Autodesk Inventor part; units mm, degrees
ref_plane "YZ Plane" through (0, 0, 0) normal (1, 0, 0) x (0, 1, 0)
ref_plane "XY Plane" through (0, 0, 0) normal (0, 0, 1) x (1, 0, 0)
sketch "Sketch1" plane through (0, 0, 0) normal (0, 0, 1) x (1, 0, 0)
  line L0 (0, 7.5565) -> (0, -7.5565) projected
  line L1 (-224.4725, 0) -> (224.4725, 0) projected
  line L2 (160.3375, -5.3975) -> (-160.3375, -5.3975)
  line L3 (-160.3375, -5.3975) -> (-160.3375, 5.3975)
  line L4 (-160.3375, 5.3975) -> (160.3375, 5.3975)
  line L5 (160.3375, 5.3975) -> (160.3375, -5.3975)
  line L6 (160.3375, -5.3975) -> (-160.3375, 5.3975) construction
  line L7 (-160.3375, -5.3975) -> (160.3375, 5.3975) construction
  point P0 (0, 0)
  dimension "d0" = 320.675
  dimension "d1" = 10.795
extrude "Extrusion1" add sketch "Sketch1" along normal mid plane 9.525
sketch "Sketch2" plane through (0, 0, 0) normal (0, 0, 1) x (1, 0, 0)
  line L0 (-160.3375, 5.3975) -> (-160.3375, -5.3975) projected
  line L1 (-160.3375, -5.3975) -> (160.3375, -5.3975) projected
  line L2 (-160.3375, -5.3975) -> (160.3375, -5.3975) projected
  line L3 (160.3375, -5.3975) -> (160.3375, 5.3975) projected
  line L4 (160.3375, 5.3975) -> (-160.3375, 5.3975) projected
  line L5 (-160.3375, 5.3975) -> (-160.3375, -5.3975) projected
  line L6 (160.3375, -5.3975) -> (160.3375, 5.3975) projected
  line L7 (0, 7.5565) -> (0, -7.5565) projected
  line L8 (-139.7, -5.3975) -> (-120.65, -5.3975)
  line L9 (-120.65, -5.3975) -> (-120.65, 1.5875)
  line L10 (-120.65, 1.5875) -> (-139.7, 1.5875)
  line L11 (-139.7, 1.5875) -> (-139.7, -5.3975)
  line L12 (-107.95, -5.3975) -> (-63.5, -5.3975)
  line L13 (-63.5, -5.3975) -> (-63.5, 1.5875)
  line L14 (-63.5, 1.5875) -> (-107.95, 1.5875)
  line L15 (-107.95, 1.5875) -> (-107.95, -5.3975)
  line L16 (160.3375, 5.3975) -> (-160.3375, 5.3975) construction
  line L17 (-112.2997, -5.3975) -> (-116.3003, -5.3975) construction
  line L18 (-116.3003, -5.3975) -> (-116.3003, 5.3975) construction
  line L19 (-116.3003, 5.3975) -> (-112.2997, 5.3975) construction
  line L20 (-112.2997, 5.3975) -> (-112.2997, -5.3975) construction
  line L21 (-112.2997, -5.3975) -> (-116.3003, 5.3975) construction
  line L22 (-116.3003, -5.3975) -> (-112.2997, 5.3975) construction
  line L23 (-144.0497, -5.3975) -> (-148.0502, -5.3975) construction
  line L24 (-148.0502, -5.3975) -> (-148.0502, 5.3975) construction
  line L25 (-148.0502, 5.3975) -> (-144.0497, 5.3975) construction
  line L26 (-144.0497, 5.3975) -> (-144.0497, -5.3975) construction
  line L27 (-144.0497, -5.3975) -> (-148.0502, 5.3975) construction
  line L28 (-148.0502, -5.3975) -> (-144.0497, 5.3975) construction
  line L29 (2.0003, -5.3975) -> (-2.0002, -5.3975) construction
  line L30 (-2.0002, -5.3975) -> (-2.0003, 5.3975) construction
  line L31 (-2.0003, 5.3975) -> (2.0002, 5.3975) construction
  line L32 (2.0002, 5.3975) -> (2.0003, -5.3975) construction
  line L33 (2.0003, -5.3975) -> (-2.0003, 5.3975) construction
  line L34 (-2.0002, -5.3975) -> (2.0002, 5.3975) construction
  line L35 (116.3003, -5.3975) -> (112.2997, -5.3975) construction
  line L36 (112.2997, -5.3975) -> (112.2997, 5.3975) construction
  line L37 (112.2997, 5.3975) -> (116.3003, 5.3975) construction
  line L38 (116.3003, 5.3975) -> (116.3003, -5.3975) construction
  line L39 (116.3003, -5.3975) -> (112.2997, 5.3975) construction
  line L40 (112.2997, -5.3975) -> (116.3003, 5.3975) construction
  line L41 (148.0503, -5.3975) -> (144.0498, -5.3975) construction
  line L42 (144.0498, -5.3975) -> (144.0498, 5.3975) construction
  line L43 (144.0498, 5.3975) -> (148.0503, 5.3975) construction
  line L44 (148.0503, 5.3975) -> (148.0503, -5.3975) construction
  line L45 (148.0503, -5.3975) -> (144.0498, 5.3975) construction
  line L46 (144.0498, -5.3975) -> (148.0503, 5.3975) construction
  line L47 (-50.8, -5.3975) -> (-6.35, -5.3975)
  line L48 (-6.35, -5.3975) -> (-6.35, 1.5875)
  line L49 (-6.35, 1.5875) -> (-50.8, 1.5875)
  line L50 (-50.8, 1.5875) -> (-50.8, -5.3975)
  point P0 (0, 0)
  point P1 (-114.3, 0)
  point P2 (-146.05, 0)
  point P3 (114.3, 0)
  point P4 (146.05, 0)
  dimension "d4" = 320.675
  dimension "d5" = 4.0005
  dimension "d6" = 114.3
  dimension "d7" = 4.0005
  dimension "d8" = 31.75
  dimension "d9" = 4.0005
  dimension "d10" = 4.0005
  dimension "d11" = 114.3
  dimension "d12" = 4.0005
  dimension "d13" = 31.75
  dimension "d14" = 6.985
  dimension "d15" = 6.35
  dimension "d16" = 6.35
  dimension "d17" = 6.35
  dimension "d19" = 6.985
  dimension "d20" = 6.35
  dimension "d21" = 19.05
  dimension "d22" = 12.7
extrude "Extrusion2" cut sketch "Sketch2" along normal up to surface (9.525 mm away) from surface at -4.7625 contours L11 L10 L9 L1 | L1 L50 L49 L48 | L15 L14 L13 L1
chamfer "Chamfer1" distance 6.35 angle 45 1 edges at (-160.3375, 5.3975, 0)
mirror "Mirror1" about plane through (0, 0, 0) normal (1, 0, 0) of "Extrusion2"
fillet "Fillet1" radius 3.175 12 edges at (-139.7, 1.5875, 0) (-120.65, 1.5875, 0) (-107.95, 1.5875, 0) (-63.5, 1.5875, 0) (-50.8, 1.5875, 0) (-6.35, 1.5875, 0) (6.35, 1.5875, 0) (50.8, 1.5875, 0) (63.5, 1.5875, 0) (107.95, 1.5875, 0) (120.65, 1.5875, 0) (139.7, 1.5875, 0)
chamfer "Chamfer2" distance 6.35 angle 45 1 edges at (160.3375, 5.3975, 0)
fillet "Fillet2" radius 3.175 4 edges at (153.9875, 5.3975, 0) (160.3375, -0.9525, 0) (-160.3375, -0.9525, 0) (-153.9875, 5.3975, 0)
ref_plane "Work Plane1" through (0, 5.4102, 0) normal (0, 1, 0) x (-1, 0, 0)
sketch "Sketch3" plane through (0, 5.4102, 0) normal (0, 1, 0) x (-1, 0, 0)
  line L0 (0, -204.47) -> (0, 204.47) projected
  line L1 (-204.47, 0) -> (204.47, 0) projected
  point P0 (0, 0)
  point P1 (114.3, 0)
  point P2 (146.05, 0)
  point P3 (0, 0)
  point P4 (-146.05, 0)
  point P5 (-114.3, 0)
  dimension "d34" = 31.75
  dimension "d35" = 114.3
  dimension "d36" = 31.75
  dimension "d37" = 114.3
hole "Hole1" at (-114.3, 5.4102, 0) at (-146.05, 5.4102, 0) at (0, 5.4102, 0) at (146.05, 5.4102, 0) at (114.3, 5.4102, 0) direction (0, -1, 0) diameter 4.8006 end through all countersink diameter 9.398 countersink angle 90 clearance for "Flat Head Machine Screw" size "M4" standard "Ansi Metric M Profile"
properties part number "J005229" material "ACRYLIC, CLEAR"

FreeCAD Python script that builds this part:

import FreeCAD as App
import Part
import Sketcher

V = App.Vector
Q = App.Units.Quantity


def edges_at(feature, points):
    """Names of the edges that pass closest to the given points."""
    edges = feature.Shape.Edges
    near = lambda p: min(range(len(edges)), key=lambda i: edges[i].distToShape(Part.Vertex(*p))[0])
    return sorted({f"Edge{near(p) + 1}" for p in points})


def add_polygon(sketch, points):
    """Adds a closed chain of lines whose ends are joined by coincident constraints."""
    first, n = sketch.GeometryCount, len(points)
    for a, b in zip(points, points[1:] + points[:1]):
        sketch.addGeometry(Part.LineSegment(App.Vector(*a, 0), App.Vector(*b, 0)), False)
    for i in range(n):
        sketch.addConstraint(Sketcher.Constraint("Coincident", first + i, 2, first + (i + 1) % n, 1))

doc = App.newDocument("Part")
params = doc.addObject("Spreadsheet::Sheet", "Params")
for row, (alias, value) in enumerate([
    ("sketch1_width", "12.625 in"),
    ("sketch1_height", "0.425 in"),
    ("pad1_length", "0.375 in"),
    ("sketch2_width", "0.75 in"),
    ("sketch2_height", "0.275 in"),
    ("pocket1_length", "0.375 in"),
    ("chamfer_size", "0.25 in"),
    ("fillet_radius", "0.125 in"),
    ("chamfer2_size", "0.25 in"),
    ("fillet2_radius", "0.125 in"),
    ("sketch3_diameter", "0.189 in"),
    ("hole_diameter", "0.189 in"),
    ("hole_csink_diameter", "0.37 in"),
], start=1):
    params.set(f"A{row}", alias)
    params.set(f"B{row}", "=" + value)
    params.setAlias(f"B{row}", alias)

body = doc.addObject("PartDesign::Body", "Body")

# Sketch on XY plane
sketch1 = body.newObject("Sketcher::SketchObject", "Sketch")
sketch1.AttachmentSupport = (doc.getObject("XY_Plane"), [""])
sketch1.MapMode = "FlatFace"
add_polygon(sketch1, [(160, 5), (-160, 5), (-160, -5), (160, -5)])  # lines 0-3
sketch1.addConstraint(Sketcher.Constraint("Horizontal", 0))
sketch1.addConstraint(Sketcher.Constraint("Vertical", 1))
sketch1.addConstraint(Sketcher.Constraint("Horizontal", 2))
sketch1.addConstraint(Sketcher.Constraint("Vertical", 3))
sketch1.addConstraint(Sketcher.Constraint("Symmetric", 0, 2, 2, 2, -1, 1))
sketch1.addConstraint(Sketcher.Constraint("DistanceX", 0, 2, 0, 1, Q("12.625 in")))
sketch1.addConstraint(Sketcher.Constraint("DistanceY", 1, 2, 1, 1, Q("0.425 in")))
sketch1.setExpression("Constraints[9]", "Params.sketch1_width")
sketch1.setExpression("Constraints[10]", "Params.sketch1_height")
pad1 = body.newObject("PartDesign::Pad", "Pad")
pad1.Profile = sketch1
pad1.setExpression("Length", "Params.pad1_length")
pad1.Midplane = True

# Sketch on XY plane
sketch2 = body.newObject("Sketcher::SketchObject", "Sketch001")
sketch2.AttachmentSupport = (doc.getObject("XY_Plane"), [""])
sketch2.MapMode = "FlatFace"
sketch2.AttachmentOffset = App.Placement(V(0, 0, -0.1875 * 25.4), App.Rotation())
add_polygon(sketch2, [(-140, 2), (-140, -5), (-121, -5), (-121, 2)])  # lines 0-3
add_polygon(sketch2, [(-51, -5), (-6, -5), (-6, 2), (-51, 2)])  # lines 4-7
add_polygon(sketch2, [(-108, 2), (-108, -5), (-64, -5), (-64, 2)])  # lines 8-11
sketch2.addConstraint(Sketcher.Constraint("Vertical", 0))
sketch2.addConstraint(Sketcher.Constraint("Horizontal", 1))
sketch2.addConstraint(Sketcher.Constraint("Vertical", 2))
sketch2.addConstraint(Sketcher.Constraint("Horizontal", 3))
sketch2.addConstraint(Sketcher.Constraint("Horizontal", 4))
sketch2.addConstraint(Sketcher.Constraint("Vertical", 5))
sketch2.addConstraint(Sketcher.Constraint("Horizontal", 6))
sketch2.addConstraint(Sketcher.Constraint("Vertical", 7))
sketch2.addConstraint(Sketcher.Constraint("Vertical", 8))
sketch2.addConstraint(Sketcher.Constraint("Horizontal", 9))
sketch2.addConstraint(Sketcher.Constraint("Vertical", 10))
sketch2.addConstraint(Sketcher.Constraint("Horizontal", 11))
sketch2.addConstraint(Sketcher.Constraint("Horizontal", 1, 2, 4, 2))
sketch2.addConstraint(Sketcher.Constraint("Horizontal", 3, 2, 5, 2))
sketch2.addConstraint(Sketcher.Constraint("Horizontal", 7, 2, 8, 2))
sketch2.addConstraint(Sketcher.Constraint("Horizontal", 6, 2, 10, 2))
sketch2.addConstraint(Sketcher.Constraint("Equal", 6, 9))
sketch2.addConstraint(Sketcher.Constraint("DistanceX", 1, 1, 1, 2, Q("0.75 in")))
sketch2.addConstraint(Sketcher.Constraint("DistanceX", 1, 2, 4, 2, Q("4.5 in")))
sketch2.addConstraint(Sketcher.Constraint("DistanceX", 1, 2, 8, 2, Q("0.5 in")))
sketch2.addConstraint(Sketcher.Constraint("DistanceX", 9, 2, 7, 2, Q("0.5 in")))
sketch2.addConstraint(Sketcher.Constraint("DistanceY", 0, 2, 0, 1, Q("0.275 in")))
sketch2.addConstraint(Sketcher.Constraint("DistanceX", 4, 2, -1, 1, Q("0.25 in")))
sketch2.addConstraint(Sketcher.Constraint("DistanceY", -1, 1, 2, 2, Q("0.0625 in")))
sketch2.setExpression("Constraints[29]", "Params.sketch2_width")
sketch2.setExpression("Constraints[33]", "Params.sketch2_height")
pocket1 = body.newObject("PartDesign::Pocket", "Pocket")
pocket1.Profile = sketch2
pocket1.setExpression("Length", "Params.pocket1_length")
pocket1.Reversed = True
doc.recompute()

chamfer = body.newObject("PartDesign::Chamfer", "Chamfer")
chamfer.Base = (pocket1, edges_at(pocket1, [(-160.338, 5.397, 0)]))
chamfer.setExpression("Size", "Params.chamfer_size")
doc.recompute()

mirrored = body.newObject("PartDesign::Mirrored", "Mirrored")
mirrored.Originals = [pocket1]
mirrored.MirrorPlane = (doc.getObject("YZ_Plane"), [""])
body.Tip = mirrored
doc.recompute()

fillet = body.newObject("PartDesign::Fillet", "Fillet")
fillet.Base = (mirrored, edges_at(mirrored, [
    (-139.7, 1.587, 0),
    (-120.65, 1.587, 0),
    (-107.95, 1.587, 0),
    (-63.5, 1.587, 0),
    (-50.8, 1.587, 0),
    (-6.35, 1.587, 0),
    (6.35, 1.587, 0),
    (50.8, 1.587, 0),
    (63.5, 1.587, 0),
    (107.95, 1.587, 0),
    (120.65, 1.587, 0),
    (139.7, 1.587, 0),
]))
fillet.setExpression("Radius", "Params.fillet_radius")
doc.recompute()

chamfer2 = body.newObject("PartDesign::Chamfer", "Chamfer001")
chamfer2.Base = (fillet, edges_at(fillet, [(160.338, 5.397, 0)]))
chamfer2.setExpression("Size", "Params.chamfer2_size")
doc.recompute()

fillet2 = body.newObject("PartDesign::Fillet", "Fillet001")
fillet2.Base = (chamfer2, edges_at(chamfer2, [
    (153.988, 5.397, 0),
    (160.338, -0.953, 0),
    (-160.338, -0.953, 0),
    (-153.988, 5.397, 0),
]))
fillet2.setExpression("Radius", "Params.fillet2_radius")

# Sketch on XZ plane
sketch3 = body.newObject("Sketcher::SketchObject", "Sketch002")
sketch3.AttachmentSupport = (doc.getObject("XZ_Plane"), [""])
sketch3.MapMode = "FlatFace"
sketch3.AttachmentOffset = App.Placement(V(0, 0, -0.213 * 25.4), App.Rotation())
sketch3.addGeometry(Part.Circle(V(-114.3, 0, 0), V(0, 0, 1), 2.4), False)
sketch3.addGeometry(Part.Circle(V(-146.1, 0, 0), V(0, 0, 1), 2.4), False)
sketch3.addGeometry(Part.Circle(V(0, 0, 0), V(0, 0, 1), 2.4), False)
sketch3.addGeometry(Part.Circle(V(146.1, 0, 0), V(0, 0, 1), 2.4), False)
sketch3.addGeometry(Part.Circle(V(114.3, 0, 0), V(0, 0, 1), 2.4), False)
sketch3.addConstraint(Sketcher.Constraint("Coincident", 2, 3, -1, 1))
sketch3.addConstraint(Sketcher.Constraint("Equal", 0, 1))
sketch3.addConstraint(Sketcher.Constraint("Equal", 1, 2))
sketch3.addConstraint(Sketcher.Constraint("Equal", 2, 3))
sketch3.addConstraint(Sketcher.Constraint("Equal", 3, 4))
sketch3.addConstraint(Sketcher.Constraint("Symmetric", 1, 3, 3, 3, -1, 1))
sketch3.addConstraint(Sketcher.Constraint("Symmetric", 0, 3, 4, 3, -1, 1))
sketch3.addConstraint(Sketcher.Constraint("PointOnObject", 0, 3, -1))
sketch3.addConstraint(Sketcher.Constraint("PointOnObject", 1, 3, -1))
sketch3.addConstraint(Sketcher.Constraint("Diameter", 0, Q("0.189 in")))
sketch3.addConstraint(Sketcher.Constraint("DistanceX", 0, 3, 4, 3, Q("9 in")))
sketch3.addConstraint(Sketcher.Constraint("DistanceX", 1, 3, 3, 3, Q("11.5 in")))
sketch3.setExpression("Constraints[9]", "Params.sketch3_diameter")
doc.recompute()
hole = body.newObject("PartDesign::Hole", "Hole")
hole.Profile = sketch3
hole.ThreadType = "None"
hole.setExpression("Diameter", "Params.hole_diameter")
hole.DepthType = "ThroughAll"
hole.HoleCutType = "Countersink"
hole.setExpression("HoleCutDiameter", "Params.hole_csink_diameter")
hole.HoleCutCountersinkAngle = 90
hole.Reversed = True

doc.recompute()
